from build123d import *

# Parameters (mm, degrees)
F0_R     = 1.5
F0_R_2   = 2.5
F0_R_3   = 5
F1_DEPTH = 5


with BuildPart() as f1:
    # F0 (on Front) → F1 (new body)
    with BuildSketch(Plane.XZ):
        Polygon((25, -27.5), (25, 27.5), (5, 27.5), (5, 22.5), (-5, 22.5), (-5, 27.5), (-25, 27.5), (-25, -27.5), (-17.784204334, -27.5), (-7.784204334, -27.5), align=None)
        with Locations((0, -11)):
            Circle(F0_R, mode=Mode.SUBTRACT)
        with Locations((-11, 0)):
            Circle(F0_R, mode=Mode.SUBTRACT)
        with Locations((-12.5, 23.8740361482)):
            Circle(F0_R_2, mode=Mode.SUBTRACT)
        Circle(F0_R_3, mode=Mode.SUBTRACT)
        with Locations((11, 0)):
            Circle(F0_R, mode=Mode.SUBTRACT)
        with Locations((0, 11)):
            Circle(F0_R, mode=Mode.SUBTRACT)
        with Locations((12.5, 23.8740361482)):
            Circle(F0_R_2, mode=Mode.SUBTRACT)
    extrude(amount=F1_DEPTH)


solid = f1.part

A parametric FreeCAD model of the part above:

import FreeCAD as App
import Part
import Sketcher
Q = App.Units.Quantity


def add_polygon(sketch, points):
    """Adds a closed chain of lines whose ends are joined by coincident constraints."""
    first, n = sketch.GeometryCount, len(points)
    for a, b in zip(points, points[1:] + points[:1]):
        sketch.addGeometry(Part.LineSegment(App.Vector(*a, 0), App.Vector(*b, 0)), False)
    for i in range(n):
        sketch.addConstraint(Sketcher.Constraint("Coincident", first + i, 2, first + (i + 1) % n, 1))

doc = App.newDocument("Part")
body = doc.addObject("PartDesign::Body", "Body")

# Sketch on XZ plane
sketch1 = doc.addObject("Sketcher::SketchObject", "Sketch")
body.addObject(sketch1)
sketch1.AttachmentSupport = (doc.XZ_Plane, [""])
sketch1.MapMode = "FlatFace"
add_polygon(sketch1, [(25, -27.5), (25, 27.5), (5, 27.5), (5, 22.5), (-5, 22.5), (-5, 27.5), (-25, 27.5), (-25, -27.5)])  # lines 0-7
sketch1.addGeometry(Part.Circle(App.Vector(-11, 0, 0), App.Vector(0, 0, 1), 1.5), False)  # 8
sketch1.addGeometry(Part.Circle(App.Vector(0, -11, 0), App.Vector(0, 0, 1), 1.5), False)  # 9
sketch1.addGeometry(Part.Circle(App.Vector(0, 0, 0), App.Vector(0, 0, 1), 5), False)  # 10
sketch1.addGeometry(Part.Circle(App.Vector(11, 0, 0), App.Vector(0, 0, 1), 1.5), False)  # 11
sketch1.addGeometry(Part.Circle(App.Vector(-12.5, 23.874036, 0), App.Vector(0, 0, 1), 2.5), False)  # 12
sketch1.addGeometry(Part.Circle(App.Vector(0, 11, 0), App.Vector(0, 0, 1), 1.5), False)  # 13
sketch1.addGeometry(Part.Circle(App.Vector(12.5, 23.874036, 0), App.Vector(0, 0, 1), 2.5), False)  # 14
sketch1.addConstraint([
    Sketcher.Constraint("Vertical", 0),
    Sketcher.Constraint("Horizontal", 1),
    Sketcher.Constraint("Vertical", 2),
    Sketcher.Constraint("Horizontal", 3),
    Sketcher.Constraint("Vertical", 4),
    Sketcher.Constraint("Horizontal", 5),
    Sketcher.Constraint("Vertical", 6),
    Sketcher.Constraint("Horizontal", 7),
    Sketcher.Constraint("Coincident", 10, 3, -1, 1),
    Sketcher.Constraint("Equal", 8, 9),
    Sketcher.Constraint("Equal", 9, 11),
    Sketcher.Constraint("Equal", 11, 13),
    Sketcher.Constraint("Equal", 12, 14),
    Sketcher.Constraint("Symmetric", 8, 3, 11, 3, -1, 1),
    Sketcher.Constraint("Symmetric", 9, 3, 13, 3, -1, 1),
    Sketcher.Constraint("Symmetric", 0, 2, 6, 2, -1, 1),
    Sketcher.Constraint("Symmetric", 12, 3, 14, 3, -2),
    Sketcher.Constraint("Symmetric", 1, 2, 4, 2, -2),
    Sketcher.Constraint("PointOnObject", 8, 3, -1),
    Sketcher.Constraint("PointOnObject", 9, 3, -2),
    Sketcher.Constraint("Diameter", 8, Q("3 mm")),
    Sketcher.Constraint("Diameter", 10, Q("10 mm")),
    Sketcher.Constraint("Diameter", 12, Q("5 mm")),
    Sketcher.Constraint("DistanceX", 1, 2, 1, 1, Q("20 mm")),
    Sketcher.Constraint("DistanceX", 3, 2, 3, 1, Q("10 mm")),
    Sketcher.Constraint("DistanceY", 0, 1, 0, 2, Q("55 mm")),
    Sketcher.Constraint("DistanceY", 2, 2, 2, 1, Q("5 mm")),
    Sketcher.Constraint("DistanceX", 8, 3, -1, 1, Q("11 mm")),
    Sketcher.Constraint("DistanceY", 9, 3, -1, 1, Q("11 mm")),
    Sketcher.Constraint("DistanceX", 12, 3, 14, 3, Q("25 mm")),
    Sketcher.Constraint("DistanceY", -1, 1, 12, 3, Q("23.874036 mm")),
])
pad1 = doc.addObject("PartDesign::Pad", "Pad")
body.addObject(pad1)
pad1.Profile = sketch1
pad1.Length = 5

doc.recompute()
